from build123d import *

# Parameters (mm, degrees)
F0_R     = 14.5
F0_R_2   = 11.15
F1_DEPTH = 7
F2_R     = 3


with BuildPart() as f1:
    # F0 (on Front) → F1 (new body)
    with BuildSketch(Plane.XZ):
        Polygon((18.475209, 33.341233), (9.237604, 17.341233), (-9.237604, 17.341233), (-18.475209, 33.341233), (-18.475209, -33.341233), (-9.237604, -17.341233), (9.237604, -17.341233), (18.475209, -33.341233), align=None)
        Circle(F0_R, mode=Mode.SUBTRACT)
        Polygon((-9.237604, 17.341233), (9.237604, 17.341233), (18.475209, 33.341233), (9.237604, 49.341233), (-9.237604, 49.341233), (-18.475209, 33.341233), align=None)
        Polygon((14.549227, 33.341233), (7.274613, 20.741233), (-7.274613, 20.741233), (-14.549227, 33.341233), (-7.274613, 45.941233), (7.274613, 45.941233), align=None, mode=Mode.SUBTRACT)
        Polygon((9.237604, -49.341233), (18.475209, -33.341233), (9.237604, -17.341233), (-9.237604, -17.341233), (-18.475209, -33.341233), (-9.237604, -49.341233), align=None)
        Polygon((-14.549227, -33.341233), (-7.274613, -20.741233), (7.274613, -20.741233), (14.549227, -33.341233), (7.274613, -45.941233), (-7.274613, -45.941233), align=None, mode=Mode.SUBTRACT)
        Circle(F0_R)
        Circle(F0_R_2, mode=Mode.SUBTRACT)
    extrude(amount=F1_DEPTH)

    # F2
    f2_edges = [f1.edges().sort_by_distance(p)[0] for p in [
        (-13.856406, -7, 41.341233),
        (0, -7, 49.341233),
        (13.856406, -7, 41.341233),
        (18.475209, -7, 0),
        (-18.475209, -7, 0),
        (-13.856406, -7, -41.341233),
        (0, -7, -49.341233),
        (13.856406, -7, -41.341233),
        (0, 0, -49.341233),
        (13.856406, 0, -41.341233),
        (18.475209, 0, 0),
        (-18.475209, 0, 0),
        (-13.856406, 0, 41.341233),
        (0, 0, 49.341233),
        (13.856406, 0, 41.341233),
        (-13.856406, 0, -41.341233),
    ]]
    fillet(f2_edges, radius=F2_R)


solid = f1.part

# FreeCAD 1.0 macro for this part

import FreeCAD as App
import Part
import Sketcher
Q = App.Units.Quantity


def edges_at(feature, points):
    """Names of the edges that pass closest to the given points."""
    edges = feature.Shape.Edges
    near = lambda p: min(range(len(edges)), key=lambda i: edges[i].distToShape(Part.Vertex(*p))[0])
    return sorted({f"Edge{near(p) + 1}" for p in points})

doc = App.newDocument("Part")
params = doc.addObject("Spreadsheet::Sheet", "Params")
for row, (alias, value) in enumerate([
    ("sketch1_diameter", "22.3 mm"),
    ("pad1_length", "7 mm"),
    ("fillet_radius", "3 mm"),
], start=1):
    params.set(f"A{row}", alias)
    params.set(f"B{row}", "=" + value)
    params.setAlias(f"B{row}", alias)

body = doc.addObject("PartDesign::Body", "Body")

# Sketch on XZ plane
sketch1 = doc.addObject("Sketcher::SketchObject", "Sketch")
body.addObject(sketch1)
sketch1.AttachmentSupport = (doc.XZ_Plane, [""])
sketch1.MapMode = "FlatFace"
sketch1.addGeometry([
    Part.LineSegment(App.Vector(18, -33, 0), App.Vector(18, 33, 0)),  # 0
    Part.LineSegment(App.Vector(18, 33, 0), App.Vector(9, 49, 0)),  # 1
    Part.LineSegment(App.Vector(9, 49, 0), App.Vector(-9, 49, 0)),  # 2
    Part.LineSegment(App.Vector(-9, 49, 0), App.Vector(-18, 33, 0)),  # 3
    Part.LineSegment(App.Vector(-18, 33, 0), App.Vector(-18, -33, 0)),  # 4
    Part.LineSegment(App.Vector(-18, -33, 0), App.Vector(-9, -49, 0)),  # 5
    Part.LineSegment(App.Vector(-9, -49, 0), App.Vector(9, -49, 0)),  # 6
    Part.LineSegment(App.Vector(9, -49, 0), App.Vector(18, -33, 0)),  # 7
    Part.LineSegment(App.Vector(-7, -46, 0), App.Vector(-15, -33, 0)),  # 8
    Part.LineSegment(App.Vector(-15, -33, 0), App.Vector(-7, -21, 0)),  # 9
    Part.LineSegment(App.Vector(-7, -21, 0), App.Vector(7, -21, 0)),  # 10
    Part.LineSegment(App.Vector(7, -21, 0), App.Vector(15, -33, 0)),  # 11
    Part.LineSegment(App.Vector(15, -33, 0), App.Vector(7, -46, 0)),  # 12
    Part.LineSegment(App.Vector(7, -46, 0), App.Vector(-7, -46, 0)),  # 13
    Part.Circle(App.Vector(0, 0, 0), App.Vector(0, 0, 1), 11),  # 14
    Part.LineSegment(App.Vector(7, 46, 0), App.Vector(15, 33, 0)),  # 15
    Part.LineSegment(App.Vector(15, 33, 0), App.Vector(7, 21, 0)),  # 16
    Part.LineSegment(App.Vector(7, 21, 0), App.Vector(-7, 21, 0)),  # 17
    Part.LineSegment(App.Vector(-7, 21, 0), App.Vector(-15, 33, 0)),  # 18
    Part.LineSegment(App.Vector(-15, 33, 0), App.Vector(-7, 46, 0)),  # 19
    Part.LineSegment(App.Vector(-7, 46, 0), App.Vector(7, 46, 0)),  # 20
], False)
sketch1.addConstraint([
    Sketcher.Constraint("Coincident", 0, 2, 1, 1),
    Sketcher.Constraint("Coincident", 1, 2, 2, 1),
    Sketcher.Constraint("Coincident", 2, 2, 3, 1),
    Sketcher.Constraint("Coincident", 3, 2, 4, 1),
    Sketcher.Constraint("Coincident", 4, 2, 5, 1),
    Sketcher.Constraint("Coincident", 5, 2, 6, 1),
    Sketcher.Constraint("Coincident", 6, 2, 7, 1),
    Sketcher.Constraint("Coincident", 7, 2, 0, 1),
    Sketcher.Constraint("Coincident", 8, 2, 9, 1),
    Sketcher.Constraint("Coincident", 9, 2, 10, 1),
    Sketcher.Constraint("Coincident", 10, 2, 11, 1),
    Sketcher.Constraint("Coincident", 11, 2, 12, 1),
    Sketcher.Constraint("Coincident", 12, 2, 13, 1),
    Sketcher.Constraint("Coincident", 13, 2, 8, 1),
    Sketcher.Constraint("Coincident", 15, 2, 16, 1),
    Sketcher.Constraint("Coincident", 16, 2, 17, 1),
    Sketcher.Constraint("Coincident", 17, 2, 18, 1),
    Sketcher.Constraint("Coincident", 18, 2, 19, 1),
    Sketcher.Constraint("Coincident", 19, 2, 20, 1),
    Sketcher.Constraint("Coincident", 20, 2, 15, 1),
    Sketcher.Constraint("Vertical", 0),
    Sketcher.Constraint("Horizontal", 2),
    Sketcher.Constraint("Vertical", 4),
    Sketcher.Constraint("Horizontal", 6),
    Sketcher.Constraint("Horizontal", 10),
    Sketcher.Constraint("Horizontal", 13),
    Sketcher.Constraint("Horizontal", 17),
    Sketcher.Constraint("Horizontal", 20),
    Sketcher.Constraint("Coincident", 14, 3, -1, 1),
    Sketcher.Constraint("Symmetric", 0, 2, 4, 2, -1, 1),
    Sketcher.Constraint("Symmetric", 1, 2, 5, 2, -1, 1),
    Sketcher.Constraint("Symmetric", 8, 2, 15, 2, -1, 1),
    Sketcher.Constraint("Symmetric", 9, 2, 16, 2, -1, 1),
    Sketcher.Constraint("Symmetric", 11, 2, 18, 2, -1, 1),
    Sketcher.Constraint("Symmetric", 12, 2, 19, 2, -1, 1),
    Sketcher.Constraint("Symmetric", 8, 2, 11, 2, -2),
    Sketcher.Constraint("Parallel", 3, 7),
    Sketcher.Constraint("Parallel", 5, 8),
    Sketcher.Constraint("Parallel", 7, 9),
    Sketcher.Constraint("Parallel", 8, 11),
    Sketcher.Constraint("Parallel", 9, 12),
    Sketcher.Constraint("Parallel", 11, 15),
    Sketcher.Constraint("Parallel", 15, 18),
    Sketcher.Constraint("Horizontal", 0, 2, 3, 2),
    Sketcher.Constraint("Horizontal", 4, 2, 7, 2),
    Sketcher.Constraint("Horizontal", 7, 2, 8, 2),
    Sketcher.Constraint("Vertical", 2, 2, 5, 2),
    Sketcher.Constraint("Vertical", 10, 2, 12, 2),
    Sketcher.Constraint("Diameter", 14, 22.3),
    Sketcher.Constraint("Angle", 1, Q("120.000002 deg")),
    Sketcher.Constraint("DistanceY", 0, 2, 1, 2, 16.0),
    Sketcher.Constraint("DistanceY", 8, 2, 9, 2, 12.6),
    Sketcher.Constraint("DistanceX", 2, 2, 2, 1, 18.475208),
    Sketcher.Constraint("DistanceX", 10, 1, 10, 2, 14.549226),
    Sketcher.Constraint("DistanceY", 0, 1, 0, 2, 66.682466),
])
sketch1.setExpression("Constraints[48]", "Params.sketch1_diameter")
pad1 = doc.addObject("PartDesign::Pad", "Pad")
body.addObject(pad1)
pad1.Profile = sketch1
pad1.setExpression("Length", "Params.pad1_length")
doc.recompute()

fillet = doc.addObject("PartDesign::Fillet", "Fillet")
body.addObject(fillet)
fillet.Base = (pad1, edges_at(pad1, [
    (-13.856, -7, 41.341),
    (0, -7, 49.341),
    (13.856, -7, 41.341),
    (18.475, -7, 0),
    (-18.475, -7, 0),
    (-13.856, -7, -41.341),
    (0, -7, -49.341),
    (13.856, -7, -41.341),
    (0, 0, -49.341),
    (13.856, 0, -41.341),
    (18.475, 0, 0),
    (-18.475, 0, 0),
    (-13.856, 0, 41.341),
    (0, 0, 49.341),
    (13.856, 0, 41.341),
    (-13.856, 0, -41.341),
]))
fillet.setExpression("Radius", "Params.fillet_radius")

doc.recompute()
